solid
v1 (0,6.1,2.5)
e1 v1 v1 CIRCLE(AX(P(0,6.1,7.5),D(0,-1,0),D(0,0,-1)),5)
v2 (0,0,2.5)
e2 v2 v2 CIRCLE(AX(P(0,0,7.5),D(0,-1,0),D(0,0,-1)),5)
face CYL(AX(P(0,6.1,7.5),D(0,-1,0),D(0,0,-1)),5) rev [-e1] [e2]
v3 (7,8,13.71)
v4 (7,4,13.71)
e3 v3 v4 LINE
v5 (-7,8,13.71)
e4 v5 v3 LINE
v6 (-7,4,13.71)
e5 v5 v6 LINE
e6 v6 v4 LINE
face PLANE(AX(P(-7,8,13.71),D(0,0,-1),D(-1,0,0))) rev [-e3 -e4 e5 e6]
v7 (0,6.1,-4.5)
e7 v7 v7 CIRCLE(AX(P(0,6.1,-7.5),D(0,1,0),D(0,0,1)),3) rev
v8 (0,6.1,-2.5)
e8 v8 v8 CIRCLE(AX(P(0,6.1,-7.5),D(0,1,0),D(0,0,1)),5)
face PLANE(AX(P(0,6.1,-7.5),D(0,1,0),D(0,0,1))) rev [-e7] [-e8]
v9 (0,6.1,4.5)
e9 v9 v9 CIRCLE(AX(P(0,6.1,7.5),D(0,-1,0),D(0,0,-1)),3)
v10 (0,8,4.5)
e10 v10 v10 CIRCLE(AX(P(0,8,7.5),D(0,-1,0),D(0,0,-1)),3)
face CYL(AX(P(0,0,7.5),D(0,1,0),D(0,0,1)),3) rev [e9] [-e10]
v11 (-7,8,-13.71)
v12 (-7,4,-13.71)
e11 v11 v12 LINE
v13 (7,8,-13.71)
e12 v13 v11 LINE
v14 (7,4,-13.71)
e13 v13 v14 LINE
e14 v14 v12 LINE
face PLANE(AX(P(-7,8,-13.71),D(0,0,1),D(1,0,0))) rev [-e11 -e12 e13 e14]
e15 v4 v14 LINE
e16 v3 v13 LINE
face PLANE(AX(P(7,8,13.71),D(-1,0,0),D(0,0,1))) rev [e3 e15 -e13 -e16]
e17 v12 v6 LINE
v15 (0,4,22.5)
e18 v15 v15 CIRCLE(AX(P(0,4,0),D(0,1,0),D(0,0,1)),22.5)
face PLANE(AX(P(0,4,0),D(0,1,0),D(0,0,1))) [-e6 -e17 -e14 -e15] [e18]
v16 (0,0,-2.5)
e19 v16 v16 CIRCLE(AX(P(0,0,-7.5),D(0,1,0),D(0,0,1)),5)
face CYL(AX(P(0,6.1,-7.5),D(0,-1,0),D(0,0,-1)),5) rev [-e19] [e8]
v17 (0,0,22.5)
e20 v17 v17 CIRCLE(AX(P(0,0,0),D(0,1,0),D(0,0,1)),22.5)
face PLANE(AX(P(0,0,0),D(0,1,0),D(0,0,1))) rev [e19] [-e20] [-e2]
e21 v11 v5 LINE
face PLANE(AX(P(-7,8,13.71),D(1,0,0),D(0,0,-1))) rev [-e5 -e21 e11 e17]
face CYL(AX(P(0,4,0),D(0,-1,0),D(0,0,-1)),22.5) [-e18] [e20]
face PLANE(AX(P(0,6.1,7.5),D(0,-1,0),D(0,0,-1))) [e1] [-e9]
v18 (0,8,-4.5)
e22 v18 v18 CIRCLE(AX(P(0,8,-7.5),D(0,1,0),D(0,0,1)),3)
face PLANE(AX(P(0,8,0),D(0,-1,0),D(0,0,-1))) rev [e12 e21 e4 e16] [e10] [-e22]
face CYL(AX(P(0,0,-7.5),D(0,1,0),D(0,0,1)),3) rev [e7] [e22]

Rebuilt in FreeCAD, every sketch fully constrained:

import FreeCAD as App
import Part
import Sketcher
from FreeCAD import Vector

doc = App.newDocument("Part")
body = doc.addObject("PartDesign::Body", "Body")

# Sketch on XZ plane
sketch1 = body.newObject("Sketcher::SketchObject", "Sketch")
sketch1.AttachmentSupport = (doc.getObject("XZ_Plane"), [""])
sketch1.MapMode = "FlatFace"
sketch1.addGeometry(Part.Circle(Vector(0, 0, 0), Vector(0, 0, 1), 22), False)
sketch1.addConstraint([
    Sketcher.Constraint("Coincident", 0, 3, -1, 1),
    Sketcher.Constraint("Diameter", 0, 45.0),
])
pad1 = body.newObject("PartDesign::Pad", "Pad")
pad1.Profile = sketch1
pad1.Length = 4
pad1.Reversed = True

# Sketch on XZ plane
sketch2 = body.newObject("Sketcher::SketchObject", "Sketch001")
sketch2.AttachmentSupport = (doc.getObject("XZ_Plane"), [""])
sketch2.MapMode = "FlatFace"
sketch2.AttachmentOffset = App.Placement(Vector(0, 0, -4), App.Rotation())
sketch2.addGeometry([
    Part.LineSegment(Vector(-7, -14, 0), Vector(-7, 14, 0)),
    Part.LineSegment(Vector(-7, 14, 0), Vector(7, 14, 0)),
    Part.LineSegment(Vector(7, 14, 0), Vector(7, -14, 0)),
    Part.LineSegment(Vector(7, -14, 0), Vector(-7, -14, 0)),
], False)
sketch2.addConstraint([
    Sketcher.Constraint("Coincident", 0, 2, 1, 1),
    Sketcher.Constraint("Coincident", 1, 2, 2, 1),
    Sketcher.Constraint("Coincident", 2, 2, 3, 1),
    Sketcher.Constraint("Coincident", 3, 2, 0, 1),
    Sketcher.Constraint("Vertical", 0),
    Sketcher.Constraint("Horizontal", 1),
    Sketcher.Constraint("Vertical", 2),
    Sketcher.Constraint("Horizontal", 3),
    Sketcher.Constraint("Symmetric", 0, 2, 2, 2, -1, 1),
    Sketcher.Constraint("DistanceX", 1, 1, 1, 2, 14.0),
    Sketcher.Constraint("DistanceY", 0, 1, 0, 2, 27.42),
])
pad2 = body.newObject("PartDesign::Pad", "Pad001")
pad2.Profile = sketch2
pad2.Length = 4
pad2.Reversed = True

# Sketch on XZ plane
sketch3 = body.newObject("Sketcher::SketchObject", "Sketch002")
sketch3.AttachmentSupport = (doc.getObject("XZ_Plane"), [""])
sketch3.MapMode = "FlatFace"
sketch3.AttachmentOffset = App.Placement(Vector(0, 0, -8), App.Rotation())
sketch3.addGeometry([
    Part.Circle(Vector(0, -7.5, 0), Vector(0, 0, 1), 3),
    Part.Circle(Vector(0, 7.5, 0), Vector(0, 0, 1), 3),
], False)
sketch3.addConstraint([
    Sketcher.Constraint("Equal", 0, 1),
    Sketcher.Constraint("Symmetric", 0, 3, 1, 3, -1, 1),
    Sketcher.Constraint("PointOnObject", 0, 3, -2),
    Sketcher.Constraint("Diameter", 0, 6.0),
    Sketcher.Constraint("DistanceY", 0, 3, 1, 3, 15.0),
])
pocket1 = body.newObject("PartDesign::Pocket", "Pocket")
pocket1.Profile = sketch3
pocket1.Type = "ThroughAll"
pocket1.Reversed = True

# Sketch on XZ plane
sketch4 = body.newObject("Sketcher::SketchObject", "Sketch003")
sketch4.AttachmentSupport = (doc.getObject("XZ_Plane"), [""])
sketch4.MapMode = "FlatFace"
sketch4.addGeometry([
    Part.Circle(Vector(0, 8, 0), Vector(0, 0, 1), 5),
    Part.Circle(Vector(0, -8, 0), Vector(0, 0, 1), 5),
], False)
sketch4.addConstraint([
    Sketcher.Constraint("Equal", 0, 1),
    Sketcher.Constraint("Symmetric", 0, 3, 1, 3, -1, 1),
    Sketcher.Constraint("PointOnObject", 0, 3, -2),
    Sketcher.Constraint("Diameter", 0, 10.0),
    Sketcher.Constraint("DistanceY", 1, 3, 0, 3, 15.0),
])
pocket2 = body.newObject("PartDesign::Pocket", "Pocket001")
pocket2.Profile = sketch4
pocket2.Length = 6.1

doc.recompute()
